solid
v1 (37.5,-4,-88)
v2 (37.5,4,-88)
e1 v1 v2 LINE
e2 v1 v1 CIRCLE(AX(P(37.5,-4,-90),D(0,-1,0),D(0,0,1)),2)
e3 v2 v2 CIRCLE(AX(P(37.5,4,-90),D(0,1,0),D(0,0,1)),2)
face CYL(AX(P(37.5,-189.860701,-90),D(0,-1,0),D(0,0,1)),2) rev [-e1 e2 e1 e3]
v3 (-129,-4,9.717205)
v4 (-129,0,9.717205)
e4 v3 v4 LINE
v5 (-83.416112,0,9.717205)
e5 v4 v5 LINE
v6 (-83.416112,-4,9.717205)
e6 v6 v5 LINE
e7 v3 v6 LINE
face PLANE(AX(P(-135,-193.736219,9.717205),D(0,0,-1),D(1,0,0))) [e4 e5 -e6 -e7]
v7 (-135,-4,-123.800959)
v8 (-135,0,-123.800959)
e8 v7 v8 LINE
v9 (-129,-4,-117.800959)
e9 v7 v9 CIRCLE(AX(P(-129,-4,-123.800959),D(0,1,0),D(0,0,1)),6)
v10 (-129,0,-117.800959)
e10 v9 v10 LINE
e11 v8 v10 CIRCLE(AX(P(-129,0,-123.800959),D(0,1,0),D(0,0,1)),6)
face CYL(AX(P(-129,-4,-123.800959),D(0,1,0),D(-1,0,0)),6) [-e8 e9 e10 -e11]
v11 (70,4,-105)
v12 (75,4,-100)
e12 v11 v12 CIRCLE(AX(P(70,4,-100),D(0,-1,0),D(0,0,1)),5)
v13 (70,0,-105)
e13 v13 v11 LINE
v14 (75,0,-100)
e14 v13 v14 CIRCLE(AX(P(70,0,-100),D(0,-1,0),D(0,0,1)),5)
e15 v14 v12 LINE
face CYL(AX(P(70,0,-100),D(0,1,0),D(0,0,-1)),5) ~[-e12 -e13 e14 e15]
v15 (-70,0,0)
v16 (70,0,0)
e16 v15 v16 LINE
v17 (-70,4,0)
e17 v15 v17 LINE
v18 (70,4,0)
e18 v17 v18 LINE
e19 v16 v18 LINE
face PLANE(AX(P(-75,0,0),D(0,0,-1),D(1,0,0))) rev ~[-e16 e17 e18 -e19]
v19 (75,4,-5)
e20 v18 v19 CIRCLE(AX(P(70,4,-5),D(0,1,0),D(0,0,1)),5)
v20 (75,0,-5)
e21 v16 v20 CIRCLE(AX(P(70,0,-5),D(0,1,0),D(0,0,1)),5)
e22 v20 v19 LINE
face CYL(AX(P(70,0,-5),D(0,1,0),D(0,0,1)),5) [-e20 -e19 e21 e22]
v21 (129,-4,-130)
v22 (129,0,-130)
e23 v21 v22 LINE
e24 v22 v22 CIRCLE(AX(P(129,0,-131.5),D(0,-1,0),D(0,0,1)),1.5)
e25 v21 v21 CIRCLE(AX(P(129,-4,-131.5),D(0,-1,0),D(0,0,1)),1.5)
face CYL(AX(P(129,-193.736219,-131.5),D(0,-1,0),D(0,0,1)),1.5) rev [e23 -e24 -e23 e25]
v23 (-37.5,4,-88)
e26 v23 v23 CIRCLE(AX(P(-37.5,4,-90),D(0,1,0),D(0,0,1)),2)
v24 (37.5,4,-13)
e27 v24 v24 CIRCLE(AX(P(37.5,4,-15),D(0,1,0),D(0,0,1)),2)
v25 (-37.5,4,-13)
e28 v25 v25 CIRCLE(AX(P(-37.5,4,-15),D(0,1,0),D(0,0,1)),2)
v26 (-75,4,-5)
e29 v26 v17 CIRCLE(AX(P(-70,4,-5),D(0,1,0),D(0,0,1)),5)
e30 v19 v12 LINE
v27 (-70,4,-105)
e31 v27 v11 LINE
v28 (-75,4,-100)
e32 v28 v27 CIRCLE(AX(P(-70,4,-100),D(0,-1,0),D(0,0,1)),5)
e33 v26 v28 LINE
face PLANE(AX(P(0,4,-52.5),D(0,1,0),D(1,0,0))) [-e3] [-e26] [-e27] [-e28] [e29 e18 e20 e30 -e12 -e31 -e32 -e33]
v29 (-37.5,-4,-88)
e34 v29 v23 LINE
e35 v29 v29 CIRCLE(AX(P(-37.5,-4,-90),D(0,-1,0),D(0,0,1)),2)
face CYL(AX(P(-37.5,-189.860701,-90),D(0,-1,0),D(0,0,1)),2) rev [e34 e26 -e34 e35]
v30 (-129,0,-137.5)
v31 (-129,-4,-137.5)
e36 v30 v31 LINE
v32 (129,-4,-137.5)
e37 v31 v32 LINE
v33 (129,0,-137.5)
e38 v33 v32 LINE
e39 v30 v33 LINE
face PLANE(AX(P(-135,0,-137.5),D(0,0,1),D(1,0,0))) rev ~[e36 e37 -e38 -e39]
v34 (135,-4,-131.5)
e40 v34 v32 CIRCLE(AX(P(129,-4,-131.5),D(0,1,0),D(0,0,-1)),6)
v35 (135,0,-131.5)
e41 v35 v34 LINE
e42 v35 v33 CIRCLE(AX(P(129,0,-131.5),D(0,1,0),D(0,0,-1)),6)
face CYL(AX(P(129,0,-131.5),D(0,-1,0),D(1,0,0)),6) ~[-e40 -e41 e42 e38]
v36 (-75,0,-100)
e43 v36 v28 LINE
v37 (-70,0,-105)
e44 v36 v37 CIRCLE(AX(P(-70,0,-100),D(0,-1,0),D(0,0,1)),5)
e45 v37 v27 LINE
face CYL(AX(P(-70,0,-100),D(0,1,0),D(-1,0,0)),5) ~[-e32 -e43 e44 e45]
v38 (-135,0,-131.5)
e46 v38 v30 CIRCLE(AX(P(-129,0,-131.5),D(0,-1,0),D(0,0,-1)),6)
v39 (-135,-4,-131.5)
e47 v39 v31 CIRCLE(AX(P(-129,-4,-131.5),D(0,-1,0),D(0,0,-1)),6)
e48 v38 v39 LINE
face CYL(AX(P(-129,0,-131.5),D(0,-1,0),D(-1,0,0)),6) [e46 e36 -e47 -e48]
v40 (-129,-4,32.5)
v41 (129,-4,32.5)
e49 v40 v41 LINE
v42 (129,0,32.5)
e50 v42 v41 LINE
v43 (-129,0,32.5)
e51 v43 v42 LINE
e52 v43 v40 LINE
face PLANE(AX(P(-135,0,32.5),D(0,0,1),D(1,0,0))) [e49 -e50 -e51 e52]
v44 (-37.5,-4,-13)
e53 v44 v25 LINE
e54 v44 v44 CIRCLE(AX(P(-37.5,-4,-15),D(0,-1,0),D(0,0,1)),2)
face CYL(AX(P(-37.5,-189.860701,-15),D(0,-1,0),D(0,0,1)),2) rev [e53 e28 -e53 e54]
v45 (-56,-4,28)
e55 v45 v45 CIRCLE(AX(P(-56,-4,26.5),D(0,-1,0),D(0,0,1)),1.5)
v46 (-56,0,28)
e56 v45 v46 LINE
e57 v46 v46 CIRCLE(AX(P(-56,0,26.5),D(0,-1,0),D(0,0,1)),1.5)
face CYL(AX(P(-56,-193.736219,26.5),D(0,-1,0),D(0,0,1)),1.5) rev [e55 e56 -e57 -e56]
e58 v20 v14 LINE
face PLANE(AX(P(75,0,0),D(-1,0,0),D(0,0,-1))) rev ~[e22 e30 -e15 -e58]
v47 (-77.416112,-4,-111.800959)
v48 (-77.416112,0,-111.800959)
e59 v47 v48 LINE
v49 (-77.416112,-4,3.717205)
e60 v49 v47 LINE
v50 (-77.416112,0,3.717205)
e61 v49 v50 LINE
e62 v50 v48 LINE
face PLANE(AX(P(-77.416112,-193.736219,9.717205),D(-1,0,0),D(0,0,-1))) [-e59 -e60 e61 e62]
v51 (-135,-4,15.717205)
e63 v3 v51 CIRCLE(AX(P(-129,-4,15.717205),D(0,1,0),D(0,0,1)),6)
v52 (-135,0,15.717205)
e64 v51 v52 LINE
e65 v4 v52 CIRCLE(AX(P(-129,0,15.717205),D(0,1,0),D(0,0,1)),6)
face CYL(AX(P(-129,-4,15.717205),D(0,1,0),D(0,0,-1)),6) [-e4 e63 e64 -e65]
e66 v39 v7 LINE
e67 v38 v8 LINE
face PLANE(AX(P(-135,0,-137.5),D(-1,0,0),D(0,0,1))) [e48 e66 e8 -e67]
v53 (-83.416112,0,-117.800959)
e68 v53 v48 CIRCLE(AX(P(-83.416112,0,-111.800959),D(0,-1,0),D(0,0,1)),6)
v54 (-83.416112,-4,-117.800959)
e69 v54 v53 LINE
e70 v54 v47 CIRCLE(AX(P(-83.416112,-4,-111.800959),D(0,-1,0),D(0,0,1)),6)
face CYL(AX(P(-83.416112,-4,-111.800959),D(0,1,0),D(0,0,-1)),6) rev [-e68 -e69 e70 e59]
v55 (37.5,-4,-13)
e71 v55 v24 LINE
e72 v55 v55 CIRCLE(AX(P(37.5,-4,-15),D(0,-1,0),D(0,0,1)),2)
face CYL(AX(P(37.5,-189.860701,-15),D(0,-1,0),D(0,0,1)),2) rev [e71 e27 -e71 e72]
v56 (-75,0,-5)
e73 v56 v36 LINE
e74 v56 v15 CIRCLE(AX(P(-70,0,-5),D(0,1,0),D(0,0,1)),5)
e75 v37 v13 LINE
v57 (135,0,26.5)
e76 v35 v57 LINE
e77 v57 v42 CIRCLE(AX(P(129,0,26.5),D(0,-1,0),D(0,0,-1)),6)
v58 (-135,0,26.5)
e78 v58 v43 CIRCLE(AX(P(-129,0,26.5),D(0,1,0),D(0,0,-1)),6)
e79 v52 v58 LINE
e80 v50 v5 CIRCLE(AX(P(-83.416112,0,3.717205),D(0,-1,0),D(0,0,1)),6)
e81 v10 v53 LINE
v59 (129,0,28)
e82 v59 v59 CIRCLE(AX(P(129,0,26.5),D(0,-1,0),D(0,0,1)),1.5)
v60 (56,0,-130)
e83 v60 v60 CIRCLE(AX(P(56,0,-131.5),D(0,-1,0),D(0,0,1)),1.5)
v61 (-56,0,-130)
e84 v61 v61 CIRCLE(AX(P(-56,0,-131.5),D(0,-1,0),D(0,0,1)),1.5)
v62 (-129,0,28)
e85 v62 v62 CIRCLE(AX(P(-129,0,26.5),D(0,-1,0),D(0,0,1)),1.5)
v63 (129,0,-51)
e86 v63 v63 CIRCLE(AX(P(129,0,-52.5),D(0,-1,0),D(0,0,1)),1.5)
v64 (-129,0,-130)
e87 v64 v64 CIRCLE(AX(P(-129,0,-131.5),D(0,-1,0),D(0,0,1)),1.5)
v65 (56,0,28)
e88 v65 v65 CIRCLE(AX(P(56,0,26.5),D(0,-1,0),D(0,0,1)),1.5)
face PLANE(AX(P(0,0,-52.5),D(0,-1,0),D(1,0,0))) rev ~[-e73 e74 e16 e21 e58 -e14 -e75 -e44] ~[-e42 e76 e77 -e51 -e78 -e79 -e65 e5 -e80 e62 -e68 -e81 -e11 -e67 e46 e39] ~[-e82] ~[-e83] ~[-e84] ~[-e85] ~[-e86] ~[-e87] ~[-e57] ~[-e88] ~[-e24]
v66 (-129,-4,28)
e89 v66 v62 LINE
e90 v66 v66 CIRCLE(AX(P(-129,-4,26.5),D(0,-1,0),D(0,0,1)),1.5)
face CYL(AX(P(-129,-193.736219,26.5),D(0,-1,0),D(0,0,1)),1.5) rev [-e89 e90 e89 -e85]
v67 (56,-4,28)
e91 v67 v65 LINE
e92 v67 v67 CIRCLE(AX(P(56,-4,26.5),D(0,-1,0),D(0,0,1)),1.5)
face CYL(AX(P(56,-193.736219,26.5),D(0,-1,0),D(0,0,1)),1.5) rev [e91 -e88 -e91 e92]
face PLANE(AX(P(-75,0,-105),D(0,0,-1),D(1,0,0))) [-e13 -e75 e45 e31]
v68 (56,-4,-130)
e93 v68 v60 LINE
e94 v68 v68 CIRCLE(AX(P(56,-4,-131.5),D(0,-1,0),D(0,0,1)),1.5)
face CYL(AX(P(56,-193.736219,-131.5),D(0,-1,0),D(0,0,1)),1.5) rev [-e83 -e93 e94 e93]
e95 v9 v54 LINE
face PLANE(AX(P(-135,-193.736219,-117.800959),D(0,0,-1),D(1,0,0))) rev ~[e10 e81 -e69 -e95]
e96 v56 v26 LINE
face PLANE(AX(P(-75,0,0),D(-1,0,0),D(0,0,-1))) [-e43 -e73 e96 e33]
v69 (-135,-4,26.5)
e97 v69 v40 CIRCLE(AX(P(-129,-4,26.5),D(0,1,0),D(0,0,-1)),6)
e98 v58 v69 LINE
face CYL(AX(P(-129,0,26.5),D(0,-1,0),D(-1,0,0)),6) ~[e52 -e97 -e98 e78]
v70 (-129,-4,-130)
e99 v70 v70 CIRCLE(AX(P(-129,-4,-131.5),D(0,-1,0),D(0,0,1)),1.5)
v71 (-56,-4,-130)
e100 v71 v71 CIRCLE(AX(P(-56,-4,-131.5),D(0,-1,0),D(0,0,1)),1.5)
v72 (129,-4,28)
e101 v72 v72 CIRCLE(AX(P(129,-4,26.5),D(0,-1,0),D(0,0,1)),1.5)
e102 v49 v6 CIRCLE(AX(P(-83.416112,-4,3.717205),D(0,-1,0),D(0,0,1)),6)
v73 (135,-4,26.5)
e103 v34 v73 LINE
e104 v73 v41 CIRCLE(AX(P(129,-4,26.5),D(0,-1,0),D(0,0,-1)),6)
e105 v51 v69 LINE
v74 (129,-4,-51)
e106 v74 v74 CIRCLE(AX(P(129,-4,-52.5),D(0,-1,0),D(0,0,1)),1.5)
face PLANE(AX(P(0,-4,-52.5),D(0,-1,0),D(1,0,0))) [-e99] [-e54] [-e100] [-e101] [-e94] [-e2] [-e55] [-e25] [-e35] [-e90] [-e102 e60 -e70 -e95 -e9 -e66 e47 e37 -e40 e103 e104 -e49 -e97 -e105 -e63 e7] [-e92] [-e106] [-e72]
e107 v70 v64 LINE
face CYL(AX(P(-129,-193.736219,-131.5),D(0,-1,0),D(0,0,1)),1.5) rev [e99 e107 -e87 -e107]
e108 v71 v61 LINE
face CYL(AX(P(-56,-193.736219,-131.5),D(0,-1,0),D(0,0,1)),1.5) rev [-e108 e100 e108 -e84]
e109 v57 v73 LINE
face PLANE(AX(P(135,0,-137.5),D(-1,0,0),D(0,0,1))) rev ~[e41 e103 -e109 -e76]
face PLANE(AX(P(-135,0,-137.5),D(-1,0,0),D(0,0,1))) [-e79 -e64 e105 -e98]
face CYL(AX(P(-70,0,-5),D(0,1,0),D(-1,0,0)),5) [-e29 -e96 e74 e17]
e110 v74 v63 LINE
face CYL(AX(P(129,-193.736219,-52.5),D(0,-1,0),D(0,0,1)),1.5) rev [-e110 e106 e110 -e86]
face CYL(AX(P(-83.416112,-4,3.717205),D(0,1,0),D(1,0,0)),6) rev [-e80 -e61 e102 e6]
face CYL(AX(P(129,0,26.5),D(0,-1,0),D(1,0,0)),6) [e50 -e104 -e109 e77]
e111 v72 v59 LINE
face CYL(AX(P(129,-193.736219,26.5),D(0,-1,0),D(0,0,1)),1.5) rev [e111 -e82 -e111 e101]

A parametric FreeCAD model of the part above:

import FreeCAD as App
import Part
import Sketcher

V = App.Vector


def edges_at(feature, points):
    """Names of the edges that pass closest to the given points."""
    edges = feature.Shape.Edges
    near = lambda p: min(range(len(edges)), key=lambda i: edges[i].distToShape(Part.Vertex(*p))[0])
    return sorted({f"Edge{near(p) + 1}" for p in points})


def add_polygon(sketch, points):
    """Adds a closed chain of lines whose ends are joined by coincident constraints."""
    first, n = sketch.GeometryCount, len(points)
    for a, b in zip(points, points[1:] + points[:1]):
        sketch.addGeometry(Part.LineSegment(App.Vector(*a, 0), App.Vector(*b, 0)), False)
    for i in range(n):
        sketch.addConstraint(Sketcher.Constraint("Coincident", first + i, 2, first + (i + 1) % n, 1))

doc = App.newDocument("Part")
params = doc.addObject("Spreadsheet::Sheet", "Params")
for row, (alias, value) in enumerate([
    ("sketch1_diameter", "4 mm"),
    ("sketch1_width", "150 mm"),
    ("sketch1_height", "105 mm"),
    ("pad1_length", "4 mm"),
    ("sketch2_width", "270 mm"),
    ("sketch2_height", "170 mm"),
    ("pad2_length", "4 mm"),
    ("sketch3_diameter", "4 mm"),
    ("fillet_radius", "6 mm"),
    ("sketch4_diameter", "3 mm"),
    ("fillet2_radius", "6 mm"),
    ("fillet3_radius", "5 mm"),
], start=1):
    params.set(f"A{row}", alias)
    params.set(f"B{row}", "=" + value)
    params.setAlias(f"B{row}", alias)

body = doc.addObject("PartDesign::Body", "Body")

sketch1 = doc.addObject("Sketcher::SketchObject", "Sketch")
body.addObject(sketch1)
sketch1.AttachmentSupport = (doc.XZ_Plane, [""])
sketch1.MapMode = "FlatFace"
add_polygon(sketch1, [(-75, -105), (-75, 0), (75, 0), (75, -105)])
sketch1.addGeometry(Part.Circle(V(-37.5, -15, 0), V(0, 0, 1), 2), False)
sketch1.addGeometry(Part.Circle(V(37.5, -15, 0), V(0, 0, 1), 2), False)
sketch1.addGeometry(Part.Circle(V(-37.5, -90, 0), V(0, 0, 1), 2), False)
sketch1.addGeometry(Part.Circle(V(37.5, -90, 0), V(0, 0, 1), 2), False)
sketch1.addConstraint(Sketcher.Constraint("Vertical", 0))
sketch1.addConstraint(Sketcher.Constraint("Horizontal", 1))
sketch1.addConstraint(Sketcher.Constraint("Vertical", 2))
sketch1.addConstraint(Sketcher.Constraint("Horizontal", 3))
sketch1.addConstraint(Sketcher.Constraint("Equal", 4, 5))
sketch1.addConstraint(Sketcher.Constraint("Equal", 5, 6))
sketch1.addConstraint(Sketcher.Constraint("Equal", 6, 7))
sketch1.addConstraint(Sketcher.Constraint("Symmetric", 0, 2, 1, 2, -1, 1))
sketch1.addConstraint(Sketcher.Constraint("Symmetric", 4, 3, 5, 3, -2))
sketch1.addConstraint(Sketcher.Constraint("Symmetric", 6, 3, 7, 3, -2))
sketch1.addConstraint(Sketcher.Constraint("Vertical", 4, 3, 6, 3))
sketch1.addConstraint(Sketcher.Constraint("Diameter", 4, 4.0))
sketch1.addConstraint(Sketcher.Constraint("DistanceX", 1, 1, 1, 2, 150.0))
sketch1.addConstraint(Sketcher.Constraint("DistanceY", 0, 1, 0, 2, 105.0))
sketch1.addConstraint(Sketcher.Constraint("DistanceY", 4, 3, -1, 1, 15.0))
sketch1.addConstraint(Sketcher.Constraint("DistanceY", 6, 3, -1, 1, 90.0))
sketch1.addConstraint(Sketcher.Constraint("DistanceX", 4, 3, 5, 3, 75.0))
sketch1.setExpression("Constraints[15]", "Params.sketch1_diameter")
sketch1.setExpression("Constraints[16]", "Params.sketch1_width")
sketch1.setExpression("Constraints[17]", "Params.sketch1_height")
pad1 = doc.addObject("PartDesign::Pad", "Pad")
body.addObject(pad1)
pad1.Profile = sketch1
pad1.setExpression("Length", "Params.pad1_length")
pad1.Reversed = True

sketch2 = doc.addObject("Sketcher::SketchObject", "Sketch001")
body.addObject(sketch2)
sketch2.AttachmentSupport = (doc.XZ_Plane, [""])
sketch2.MapMode = "FlatFace"
add_polygon(sketch2, [(-135, 32), (-135, -138), (135, -138), (135, 32)])
sketch2.addConstraint(Sketcher.Constraint("Vertical", 0))
sketch2.addConstraint(Sketcher.Constraint("Horizontal", 1))
sketch2.addConstraint(Sketcher.Constraint("Vertical", 2))
sketch2.addConstraint(Sketcher.Constraint("Horizontal", 3))
sketch2.addConstraint(Sketcher.Constraint("DistanceX", 1, 1, 1, 2, 270.0))
sketch2.addConstraint(Sketcher.Constraint("DistanceY", 0, 2, 0, 1, 170.0))
sketch2.addConstraint(Sketcher.Constraint("DistanceX", 0, 2, -1, 1, 135.0))
sketch2.addConstraint(Sketcher.Constraint("DistanceY", 0, 2, -1, 1, 137.5))
sketch2.setExpression("Constraints[8]", "Params.sketch2_width")
sketch2.setExpression("Constraints[9]", "Params.sketch2_height")
pad2 = doc.addObject("PartDesign::Pad", "Pad001")
body.addObject(pad2)
pad2.Profile = sketch2
pad2.setExpression("Length", "Params.pad2_length")

sketch3 = doc.addObject("Sketcher::SketchObject", "Sketch002")
body.addObject(sketch3)
sketch3.AttachmentSupport = (doc.XZ_Plane, [""])
sketch3.MapMode = "FlatFace"
sketch3.AttachmentOffset = App.Placement(V(0, 0, -4), App.Rotation())
sketch3.addGeometry(Part.Circle(V(-37.5, -90, 0), V(0, 0, 1), 2), False)
sketch3.addGeometry(Part.Circle(V(37.5, -90, 0), V(0, 0, 1), 2), False)
sketch3.addGeometry(Part.Circle(V(-37.5, -15, 0), V(0, 0, 1), 2), False)
sketch3.addGeometry(Part.Circle(V(37.5, -15, 0), V(0, 0, 1), 2), False)
sketch3.addConstraint(Sketcher.Constraint("Equal", 0, 1))
sketch3.addConstraint(Sketcher.Constraint("Equal", 1, 2))
sketch3.addConstraint(Sketcher.Constraint("Equal", 2, 3))
sketch3.addConstraint(Sketcher.Constraint("Symmetric", 0, 3, 1, 3, -2))
sketch3.addConstraint(Sketcher.Constraint("Symmetric", 2, 3, 3, 3, -2))
sketch3.addConstraint(Sketcher.Constraint("Vertical", 0, 3, 2, 3))
sketch3.addConstraint(Sketcher.Constraint("Diameter", 0, 4.0))
sketch3.addConstraint(Sketcher.Constraint("DistanceY", 0, 3, -1, 1, 90.0))
sketch3.addConstraint(Sketcher.Constraint("DistanceY", 2, 3, -1, 1, 15.0))
sketch3.addConstraint(Sketcher.Constraint("DistanceX", 0, 3, 1, 3, 75.0))
sketch3.setExpression("Constraints[6]", "Params.sketch3_diameter")
pocket1 = doc.addObject("PartDesign::Pocket", "Pocket")
body.addObject(pocket1)
pocket1.Profile = sketch3
pocket1.Type = "ThroughAll"
pocket1.Midplane = True
doc.recompute()

fillet = doc.addObject("PartDesign::Fillet", "Fillet")
body.addObject(fillet)
fillet.Base = (pocket1, edges_at(pocket1, [
    (135, -2, -137.5),
    (135, -2, 32.5),
    (-135, -2, 32.5),
    (-135, -2, -137.5),
]))
fillet.setExpression("Radius", "Params.fillet_radius")

sketch4 = doc.addObject("Sketcher::SketchObject", "Sketch003")
body.addObject(sketch4)
sketch4.AttachmentSupport = (doc.XZ_Plane, [""])
sketch4.MapMode = "FlatFace"
sketch4.addGeometry(Part.Circle(V(-129, -52.5, 0), V(0, 0, 1), 1.5), False)
sketch4.addGeometry(Part.Circle(V(-129, 26.5, 0), V(0, 0, 1), 1.5), False)
sketch4.addGeometry(Part.Circle(V(-56, 26.5, 0), V(0, 0, 1), 1.5), False)
sketch4.addGeometry(Part.Circle(V(56, 26.5, 0), V(0, 0, 1), 1.5), False)
sketch4.addGeometry(Part.Circle(V(129, 26.5, 0), V(0, 0, 1), 1.5), False)
sketch4.addGeometry(Part.Circle(V(129, -52.5, 0), V(0, 0, 1), 1.5), False)
sketch4.addGeometry(Part.Circle(V(56, -131.5, 0), V(0, 0, 1), 1.5), False)
sketch4.addGeometry(Part.Circle(V(129, -131.5, 0), V(0, 0, 1), 1.5), False)
sketch4.addGeometry(Part.Circle(V(-56, -131.5, 0), V(0, 0, 1), 1.5), False)
sketch4.addGeometry(Part.Circle(V(-129, -131.5, 0), V(0, 0, 1), 1.5), False)
sketch4.addConstraint(Sketcher.Constraint("Equal", 0, 1))
sketch4.addConstraint(Sketcher.Constraint("Equal", 1, 2))
sketch4.addConstraint(Sketcher.Constraint("Equal", 2, 3))
sketch4.addConstraint(Sketcher.Constraint("Equal", 3, 4))
sketch4.addConstraint(Sketcher.Constraint("Equal", 4, 5))
sketch4.addConstraint(Sketcher.Constraint("Equal", 5, 6))
sketch4.addConstraint(Sketcher.Constraint("Equal", 6, 7))
sketch4.addConstraint(Sketcher.Constraint("Equal", 7, 8))
sketch4.addConstraint(Sketcher.Constraint("Equal", 8, 9))
sketch4.addConstraint(Sketcher.Constraint("Symmetric", 2, 3, 3, 3, -2))
sketch4.addConstraint(Sketcher.Constraint("Symmetric", 1, 3, 4, 3, -2))
sketch4.addConstraint(Sketcher.Constraint("Symmetric", 0, 3, 5, 3, -2))
sketch4.addConstraint(Sketcher.Constraint("Symmetric", 6, 3, 8, 3, -2))
sketch4.addConstraint(Sketcher.Constraint("Symmetric", 7, 3, 9, 3, -2))
sketch4.addConstraint(Sketcher.Constraint("Horizontal", 1, 3, 2, 3))
sketch4.addConstraint(Sketcher.Constraint("Horizontal", 6, 3, 7, 3))
sketch4.addConstraint(Sketcher.Constraint("Vertical", 0, 3, 1, 3))
sketch4.addConstraint(Sketcher.Constraint("Vertical", 3, 3, 6, 3))
sketch4.addConstraint(Sketcher.Constraint("Vertical", 5, 3, 7, 3))
sketch4.addConstraint(Sketcher.Constraint("Diameter", 0, 3.0))
sketch4.addConstraint(Sketcher.Constraint("DistanceX", 0, 3, -1, 1, 129.0))
sketch4.addConstraint(Sketcher.Constraint("DistanceX", 2, 3, -1, 1, 56.0))
sketch4.addConstraint(Sketcher.Constraint("DistanceY", 0, 3, 1, 3, 79.0))
sketch4.addConstraint(Sketcher.Constraint("DistanceY", 6, 3, 5, 3, 79.0))
sketch4.addConstraint(Sketcher.Constraint("DistanceY", 0, 3, -1, 1, 52.5))
sketch4.setExpression("Constraints[19]", "Params.sketch4_diameter")
pocket2 = doc.addObject("PartDesign::Pocket", "Pocket001")
body.addObject(pocket2)
pocket2.Profile = sketch4
pocket2.Type = "ThroughAll"
pocket2.Midplane = True

sketch5 = doc.addObject("Sketcher::SketchObject", "Sketch004")
body.addObject(sketch5)
sketch5.AttachmentSupport = (doc.XZ_Plane, [""])
sketch5.MapMode = "FlatFace"
add_polygon(sketch5, [(-135, -118), (-135, 10), (-77, 10), (-77, -118)])
sketch5.addConstraint(Sketcher.Constraint("Vertical", 0))
sketch5.addConstraint(Sketcher.Constraint("Horizontal", 1))
sketch5.addConstraint(Sketcher.Constraint("Vertical", 2))
sketch5.addConstraint(Sketcher.Constraint("Horizontal", 3))
sketch5.addConstraint(Sketcher.Constraint("DistanceX", 0, 2, -1, 1, 135.0))
sketch5.addConstraint(Sketcher.Constraint("DistanceX", 1, 1, 1, 2, 57.583888))
sketch5.addConstraint(Sketcher.Constraint("DistanceY", 0, 1, 0, 2, 127.518164))
sketch5.addConstraint(Sketcher.Constraint("DistanceY", 2, 2, -1, 1, 117.800959))
pocket3 = doc.addObject("PartDesign::Pocket", "Pocket002")
body.addObject(pocket3)
pocket3.Profile = sketch5
pocket3.Type = "ThroughAll"
pocket3.Midplane = True
doc.recompute()

fillet2 = doc.addObject("PartDesign::Fillet", "Fillet001")
body.addObject(fillet2)
fillet2.Base = (pocket3, edges_at(pocket3, [
    (-135, -2, 9.717),
    (-77.416, -2, -117.801),
    (-135, -2, -117.801),
    (-77.416, -2, 9.717),
]))
fillet2.setExpression("Radius", "Params.fillet2_radius")
doc.recompute()

fillet3 = doc.addObject("PartDesign::Fillet", "Fillet002")
body.addObject(fillet3)
fillet3.Base = (fillet2, edges_at(fillet2, [
    (-75, 2, -105),
    (75, 2, -105),
    (75, 2, 0),
    (-75, 2, 0),
]))
fillet3.setExpression("Radius", "Params.fillet3_radius")

doc.recompute()
